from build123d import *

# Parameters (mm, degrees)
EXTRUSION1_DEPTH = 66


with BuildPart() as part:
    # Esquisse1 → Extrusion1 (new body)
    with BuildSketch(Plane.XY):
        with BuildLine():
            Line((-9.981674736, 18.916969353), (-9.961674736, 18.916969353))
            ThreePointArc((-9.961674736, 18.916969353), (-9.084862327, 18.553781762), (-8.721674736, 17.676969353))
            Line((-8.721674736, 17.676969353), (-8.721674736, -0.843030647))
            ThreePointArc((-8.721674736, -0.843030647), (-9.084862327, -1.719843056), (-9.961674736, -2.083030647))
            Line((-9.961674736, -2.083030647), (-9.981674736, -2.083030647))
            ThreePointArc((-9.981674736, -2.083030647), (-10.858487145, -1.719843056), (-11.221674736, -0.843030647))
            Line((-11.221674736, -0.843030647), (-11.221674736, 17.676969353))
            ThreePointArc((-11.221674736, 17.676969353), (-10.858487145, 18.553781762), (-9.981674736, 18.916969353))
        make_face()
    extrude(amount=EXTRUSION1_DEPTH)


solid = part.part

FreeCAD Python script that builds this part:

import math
import FreeCAD as App
import Part
import Sketcher
from FreeCAD import Vector

doc = App.newDocument("Part")
body = doc.addObject("PartDesign::Body", "Body")

sketch1 = body.newObject("Sketcher::SketchObject", "Sketch")
sketch1.AttachmentSupport = (doc.getObject("XY_Plane"), [""])
sketch1.MapMode = "FlatFace"
sketch1.addGeometry(Part.LineSegment(Vector(-9.962, 18.917, 0), Vector(-9.982, 18.917, 0)), False)
sketch1.addGeometry(Part.ArcOfCircle(Part.Circle(Vector(-9.982, 17.677, 0), Vector(0, 0, 1), 1.24), math.radians(90), math.radians(180)), False)
sketch1.addGeometry(Part.LineSegment(Vector(-11.222, 17.677, 0), Vector(-11.222, -0.843, 0)), False)
sketch1.addGeometry(Part.ArcOfCircle(Part.Circle(Vector(-9.982, -0.843, 0), Vector(0, 0, 1), 1.24), math.radians(180), math.radians(270)), False)
sketch1.addGeometry(Part.LineSegment(Vector(-9.982, -2.083, 0), Vector(-9.962, -2.083, 0)), False)
sketch1.addGeometry(Part.ArcOfCircle(Part.Circle(Vector(-9.962, -0.843, 0), Vector(0, 0, 1), 1.24), math.radians(-90), math.radians(0)), False)
sketch1.addGeometry(Part.LineSegment(Vector(-8.722, -0.843, 0), Vector(-8.722, 17.677, 0)), False)
sketch1.addGeometry(Part.ArcOfCircle(Part.Circle(Vector(-9.962, 17.677, 0), Vector(0, 0, 1), 1.24), math.radians(0), math.radians(90)), False)
sketch1.addConstraint(Sketcher.Constraint("Tangent", 0, 2, 1, 1))
sketch1.addConstraint(Sketcher.Constraint("Tangent", 1, 2, 2, 1))
sketch1.addConstraint(Sketcher.Constraint("Tangent", 2, 2, 3, 1))
sketch1.addConstraint(Sketcher.Constraint("Tangent", 3, 2, 4, 1))
sketch1.addConstraint(Sketcher.Constraint("Tangent", 4, 2, 5, 1))
sketch1.addConstraint(Sketcher.Constraint("Tangent", 5, 2, 6, 1))
sketch1.addConstraint(Sketcher.Constraint("Tangent", 6, 2, 7, 1))
sketch1.addConstraint(Sketcher.Constraint("Tangent", 7, 2, 0, 1))
sketch1.addConstraint(Sketcher.Constraint("Horizontal", 0))
sketch1.addConstraint(Sketcher.Constraint("Vertical", 2))
sketch1.addConstraint(Sketcher.Constraint("Horizontal", 4))
sketch1.addConstraint(Sketcher.Constraint("Vertical", 6))
sketch1.addConstraint(Sketcher.Constraint("Equal", 1, 3))
sketch1.addConstraint(Sketcher.Constraint("Equal", 3, 5))
sketch1.addConstraint(Sketcher.Constraint("Equal", 5, 7))
sketch1.addConstraint(Sketcher.Constraint("Radius", 1, 1.24))
sketch1.addConstraint(Sketcher.Constraint("DistanceX", 0, 2, 0, 1, 0.02))
sketch1.addConstraint(Sketcher.Constraint("DistanceY", 2, 2, 2, 1, 18.52))
sketch1.addConstraint(Sketcher.Constraint("DistanceY", -1, 1, 1, 3, 17.676969))
sketch1.addConstraint(Sketcher.Constraint("DistanceX", 1, 3, -1, 1, 9.981675))
pad1 = body.newObject("PartDesign::Pad", "Pad")
pad1.Profile = sketch1
pad1.Length = 66

doc.recompute()
